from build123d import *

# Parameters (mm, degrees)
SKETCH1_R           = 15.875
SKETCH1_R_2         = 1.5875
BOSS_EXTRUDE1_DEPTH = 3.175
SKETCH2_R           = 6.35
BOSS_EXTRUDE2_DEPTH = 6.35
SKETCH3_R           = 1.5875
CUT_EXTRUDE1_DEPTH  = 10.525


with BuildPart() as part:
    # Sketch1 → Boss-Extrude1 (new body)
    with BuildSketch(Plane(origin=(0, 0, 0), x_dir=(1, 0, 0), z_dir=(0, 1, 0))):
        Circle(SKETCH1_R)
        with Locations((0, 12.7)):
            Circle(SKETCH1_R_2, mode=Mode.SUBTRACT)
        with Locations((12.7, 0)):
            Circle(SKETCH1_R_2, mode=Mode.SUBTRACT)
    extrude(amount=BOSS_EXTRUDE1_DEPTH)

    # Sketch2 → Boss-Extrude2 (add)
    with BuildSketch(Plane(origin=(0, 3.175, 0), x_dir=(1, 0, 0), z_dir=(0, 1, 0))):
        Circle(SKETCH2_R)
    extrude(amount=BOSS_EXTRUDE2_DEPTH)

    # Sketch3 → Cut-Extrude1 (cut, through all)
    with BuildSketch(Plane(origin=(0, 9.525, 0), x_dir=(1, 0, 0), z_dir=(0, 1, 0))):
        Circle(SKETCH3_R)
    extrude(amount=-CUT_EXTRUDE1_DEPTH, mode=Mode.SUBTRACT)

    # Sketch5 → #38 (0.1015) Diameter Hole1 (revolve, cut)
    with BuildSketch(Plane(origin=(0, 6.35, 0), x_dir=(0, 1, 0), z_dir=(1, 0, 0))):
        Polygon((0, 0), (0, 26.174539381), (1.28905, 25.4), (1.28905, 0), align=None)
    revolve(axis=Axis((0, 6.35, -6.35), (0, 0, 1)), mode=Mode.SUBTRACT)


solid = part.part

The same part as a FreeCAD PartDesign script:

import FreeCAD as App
import Part
import Sketcher

V = App.Vector
Q = App.Units.Quantity

doc = App.newDocument("Part")
body = doc.addObject("PartDesign::Body", "Body")

# Sketch on XZ plane
sketch1 = body.newObject("Sketcher::SketchObject", "Sketch")
sketch1.AttachmentSupport = (doc.getObject("XZ_Plane"), [""])
sketch1.MapMode = "FlatFace"
sketch1.addGeometry(Part.Circle(V(0, 0, 0), V(0, 0, 1), 15.9), False)
sketch1.addGeometry(Part.Circle(V(12.7, 0, 0), V(0, 0, 1), 1.6), False)
sketch1.addGeometry(Part.Circle(V(0, -12.7, 0), V(0, 0, 1), 1.6), False)
sketch1.addConstraint(Sketcher.Constraint("Coincident", 0, 3, -1, 1))
sketch1.addConstraint(Sketcher.Constraint("Equal", 1, 2))
sketch1.addConstraint(Sketcher.Constraint("PointOnObject", 1, 3, -1))
sketch1.addConstraint(Sketcher.Constraint("PointOnObject", 2, 3, -2))
sketch1.addConstraint(Sketcher.Constraint("Diameter", 0, Q("1.25 in")))
sketch1.addConstraint(Sketcher.Constraint("Diameter", 1, Q("0.125 in")))
sketch1.addConstraint(Sketcher.Constraint("DistanceX", -1, 1, 1, 3, Q("0.5 in")))
sketch1.addConstraint(Sketcher.Constraint("DistanceY", 2, 3, -1, 1, Q("0.5 in")))
pad1 = body.newObject("PartDesign::Pad", "Pad")
pad1.Profile = sketch1
pad1.Length = Q("0.125 in")
pad1.Reversed = True

# Sketch on XZ plane
sketch2 = body.newObject("Sketcher::SketchObject", "Sketch001")
sketch2.AttachmentSupport = (doc.getObject("XZ_Plane"), [""])
sketch2.MapMode = "FlatFace"
sketch2.AttachmentOffset = App.Placement(V(0, 0, -0.125 * 25.4), App.Rotation())
sketch2.addGeometry(Part.Circle(V(0, 0, 0), V(0, 0, 1), 6), False)
sketch2.addConstraint(Sketcher.Constraint("Coincident", 0, 3, -1, 1))
sketch2.addConstraint(Sketcher.Constraint("Diameter", 0, Q("0.5 in")))
pad2 = body.newObject("PartDesign::Pad", "Pad001")
pad2.Profile = sketch2
pad2.Length = Q("0.25 in")
pad2.Reversed = True

# Sketch on XZ plane
sketch3 = body.newObject("Sketcher::SketchObject", "Sketch002")
sketch3.AttachmentSupport = (doc.getObject("XZ_Plane"), [""])
sketch3.MapMode = "FlatFace"
sketch3.AttachmentOffset = App.Placement(V(0, 0, -0.375 * 25.4), App.Rotation())
sketch3.addGeometry(Part.Circle(V(0, 0, 0), V(0, 0, 1), 1.6), False)
sketch3.addConstraint(Sketcher.Constraint("Coincident", 0, 3, -1, 1))
sketch3.addConstraint(Sketcher.Constraint("Diameter", 0, Q("0.125 in")))
pocket1 = body.newObject("PartDesign::Pocket", "Pocket")
pocket1.Profile = sketch3
pocket1.Type = "ThroughAll"
pocket1.Reversed = True

# Sketch on YZ plane
sketch4 = body.newObject("Sketcher::SketchObject", "Sketch003")
sketch4.AttachmentSupport = (doc.getObject("YZ_Plane"), [""])
sketch4.MapMode = "FlatFace"
sketch4.addGeometry(Part.LineSegment(V(6.3, 26.2, 0), V(6.3, 0, 0)), False)
sketch4.addGeometry(Part.LineSegment(V(6.3, 0, 0), V(7.6, 0, 0)), False)
sketch4.addGeometry(Part.LineSegment(V(7.6, 0, 0), V(7.6, 25.4, 0)), False)
sketch4.addGeometry(Part.LineSegment(V(7.6, 25.4, 0), V(6.3, 26.2, 0)), False)
sketch4.addGeometry(Part.LineSegment(V(6.3, 0, 0), V(6.3, 26.2, 0)), True)  # axis
sketch4.addConstraint(Sketcher.Constraint("Coincident", 0, 2, 1, 1))
sketch4.addConstraint(Sketcher.Constraint("Coincident", 1, 2, 2, 1))
sketch4.addConstraint(Sketcher.Constraint("Coincident", 2, 2, 3, 1))
sketch4.addConstraint(Sketcher.Constraint("Coincident", 3, 2, 0, 1))
sketch4.addConstraint(Sketcher.Constraint("Vertical", 0))
sketch4.addConstraint(Sketcher.Constraint("Horizontal", 1))
sketch4.addConstraint(Sketcher.Constraint("Vertical", 2))
sketch4.addConstraint(Sketcher.Constraint("Vertical", 4))
sketch4.addConstraint(Sketcher.Constraint("Coincident", 4, 1, 0, 2))
sketch4.addConstraint(Sketcher.Constraint("PointOnObject", 0, 2, -1))
sketch4.addConstraint(Sketcher.Constraint("Equal", 0, 4))
sketch4.addConstraint(Sketcher.Constraint("DistanceY", 2, 1, 2, 2, Q("1 in")))
sketch4.addConstraint(Sketcher.Constraint("Angle", 3, Q("149 deg")))
sketch4.addConstraint(Sketcher.Constraint("DistanceX", -1, 1, 0, 2, Q("0.25 in")))
sketch4.addConstraint(Sketcher.Constraint("DistanceX", 1, 1, 1, 2, 1.28905))
groove = body.newObject("PartDesign::Groove", "Groove")
groove.Profile = sketch4
groove.ReferenceAxis = (sketch4, ["Axis0"])
groove.Angle = 360

doc.recompute()
